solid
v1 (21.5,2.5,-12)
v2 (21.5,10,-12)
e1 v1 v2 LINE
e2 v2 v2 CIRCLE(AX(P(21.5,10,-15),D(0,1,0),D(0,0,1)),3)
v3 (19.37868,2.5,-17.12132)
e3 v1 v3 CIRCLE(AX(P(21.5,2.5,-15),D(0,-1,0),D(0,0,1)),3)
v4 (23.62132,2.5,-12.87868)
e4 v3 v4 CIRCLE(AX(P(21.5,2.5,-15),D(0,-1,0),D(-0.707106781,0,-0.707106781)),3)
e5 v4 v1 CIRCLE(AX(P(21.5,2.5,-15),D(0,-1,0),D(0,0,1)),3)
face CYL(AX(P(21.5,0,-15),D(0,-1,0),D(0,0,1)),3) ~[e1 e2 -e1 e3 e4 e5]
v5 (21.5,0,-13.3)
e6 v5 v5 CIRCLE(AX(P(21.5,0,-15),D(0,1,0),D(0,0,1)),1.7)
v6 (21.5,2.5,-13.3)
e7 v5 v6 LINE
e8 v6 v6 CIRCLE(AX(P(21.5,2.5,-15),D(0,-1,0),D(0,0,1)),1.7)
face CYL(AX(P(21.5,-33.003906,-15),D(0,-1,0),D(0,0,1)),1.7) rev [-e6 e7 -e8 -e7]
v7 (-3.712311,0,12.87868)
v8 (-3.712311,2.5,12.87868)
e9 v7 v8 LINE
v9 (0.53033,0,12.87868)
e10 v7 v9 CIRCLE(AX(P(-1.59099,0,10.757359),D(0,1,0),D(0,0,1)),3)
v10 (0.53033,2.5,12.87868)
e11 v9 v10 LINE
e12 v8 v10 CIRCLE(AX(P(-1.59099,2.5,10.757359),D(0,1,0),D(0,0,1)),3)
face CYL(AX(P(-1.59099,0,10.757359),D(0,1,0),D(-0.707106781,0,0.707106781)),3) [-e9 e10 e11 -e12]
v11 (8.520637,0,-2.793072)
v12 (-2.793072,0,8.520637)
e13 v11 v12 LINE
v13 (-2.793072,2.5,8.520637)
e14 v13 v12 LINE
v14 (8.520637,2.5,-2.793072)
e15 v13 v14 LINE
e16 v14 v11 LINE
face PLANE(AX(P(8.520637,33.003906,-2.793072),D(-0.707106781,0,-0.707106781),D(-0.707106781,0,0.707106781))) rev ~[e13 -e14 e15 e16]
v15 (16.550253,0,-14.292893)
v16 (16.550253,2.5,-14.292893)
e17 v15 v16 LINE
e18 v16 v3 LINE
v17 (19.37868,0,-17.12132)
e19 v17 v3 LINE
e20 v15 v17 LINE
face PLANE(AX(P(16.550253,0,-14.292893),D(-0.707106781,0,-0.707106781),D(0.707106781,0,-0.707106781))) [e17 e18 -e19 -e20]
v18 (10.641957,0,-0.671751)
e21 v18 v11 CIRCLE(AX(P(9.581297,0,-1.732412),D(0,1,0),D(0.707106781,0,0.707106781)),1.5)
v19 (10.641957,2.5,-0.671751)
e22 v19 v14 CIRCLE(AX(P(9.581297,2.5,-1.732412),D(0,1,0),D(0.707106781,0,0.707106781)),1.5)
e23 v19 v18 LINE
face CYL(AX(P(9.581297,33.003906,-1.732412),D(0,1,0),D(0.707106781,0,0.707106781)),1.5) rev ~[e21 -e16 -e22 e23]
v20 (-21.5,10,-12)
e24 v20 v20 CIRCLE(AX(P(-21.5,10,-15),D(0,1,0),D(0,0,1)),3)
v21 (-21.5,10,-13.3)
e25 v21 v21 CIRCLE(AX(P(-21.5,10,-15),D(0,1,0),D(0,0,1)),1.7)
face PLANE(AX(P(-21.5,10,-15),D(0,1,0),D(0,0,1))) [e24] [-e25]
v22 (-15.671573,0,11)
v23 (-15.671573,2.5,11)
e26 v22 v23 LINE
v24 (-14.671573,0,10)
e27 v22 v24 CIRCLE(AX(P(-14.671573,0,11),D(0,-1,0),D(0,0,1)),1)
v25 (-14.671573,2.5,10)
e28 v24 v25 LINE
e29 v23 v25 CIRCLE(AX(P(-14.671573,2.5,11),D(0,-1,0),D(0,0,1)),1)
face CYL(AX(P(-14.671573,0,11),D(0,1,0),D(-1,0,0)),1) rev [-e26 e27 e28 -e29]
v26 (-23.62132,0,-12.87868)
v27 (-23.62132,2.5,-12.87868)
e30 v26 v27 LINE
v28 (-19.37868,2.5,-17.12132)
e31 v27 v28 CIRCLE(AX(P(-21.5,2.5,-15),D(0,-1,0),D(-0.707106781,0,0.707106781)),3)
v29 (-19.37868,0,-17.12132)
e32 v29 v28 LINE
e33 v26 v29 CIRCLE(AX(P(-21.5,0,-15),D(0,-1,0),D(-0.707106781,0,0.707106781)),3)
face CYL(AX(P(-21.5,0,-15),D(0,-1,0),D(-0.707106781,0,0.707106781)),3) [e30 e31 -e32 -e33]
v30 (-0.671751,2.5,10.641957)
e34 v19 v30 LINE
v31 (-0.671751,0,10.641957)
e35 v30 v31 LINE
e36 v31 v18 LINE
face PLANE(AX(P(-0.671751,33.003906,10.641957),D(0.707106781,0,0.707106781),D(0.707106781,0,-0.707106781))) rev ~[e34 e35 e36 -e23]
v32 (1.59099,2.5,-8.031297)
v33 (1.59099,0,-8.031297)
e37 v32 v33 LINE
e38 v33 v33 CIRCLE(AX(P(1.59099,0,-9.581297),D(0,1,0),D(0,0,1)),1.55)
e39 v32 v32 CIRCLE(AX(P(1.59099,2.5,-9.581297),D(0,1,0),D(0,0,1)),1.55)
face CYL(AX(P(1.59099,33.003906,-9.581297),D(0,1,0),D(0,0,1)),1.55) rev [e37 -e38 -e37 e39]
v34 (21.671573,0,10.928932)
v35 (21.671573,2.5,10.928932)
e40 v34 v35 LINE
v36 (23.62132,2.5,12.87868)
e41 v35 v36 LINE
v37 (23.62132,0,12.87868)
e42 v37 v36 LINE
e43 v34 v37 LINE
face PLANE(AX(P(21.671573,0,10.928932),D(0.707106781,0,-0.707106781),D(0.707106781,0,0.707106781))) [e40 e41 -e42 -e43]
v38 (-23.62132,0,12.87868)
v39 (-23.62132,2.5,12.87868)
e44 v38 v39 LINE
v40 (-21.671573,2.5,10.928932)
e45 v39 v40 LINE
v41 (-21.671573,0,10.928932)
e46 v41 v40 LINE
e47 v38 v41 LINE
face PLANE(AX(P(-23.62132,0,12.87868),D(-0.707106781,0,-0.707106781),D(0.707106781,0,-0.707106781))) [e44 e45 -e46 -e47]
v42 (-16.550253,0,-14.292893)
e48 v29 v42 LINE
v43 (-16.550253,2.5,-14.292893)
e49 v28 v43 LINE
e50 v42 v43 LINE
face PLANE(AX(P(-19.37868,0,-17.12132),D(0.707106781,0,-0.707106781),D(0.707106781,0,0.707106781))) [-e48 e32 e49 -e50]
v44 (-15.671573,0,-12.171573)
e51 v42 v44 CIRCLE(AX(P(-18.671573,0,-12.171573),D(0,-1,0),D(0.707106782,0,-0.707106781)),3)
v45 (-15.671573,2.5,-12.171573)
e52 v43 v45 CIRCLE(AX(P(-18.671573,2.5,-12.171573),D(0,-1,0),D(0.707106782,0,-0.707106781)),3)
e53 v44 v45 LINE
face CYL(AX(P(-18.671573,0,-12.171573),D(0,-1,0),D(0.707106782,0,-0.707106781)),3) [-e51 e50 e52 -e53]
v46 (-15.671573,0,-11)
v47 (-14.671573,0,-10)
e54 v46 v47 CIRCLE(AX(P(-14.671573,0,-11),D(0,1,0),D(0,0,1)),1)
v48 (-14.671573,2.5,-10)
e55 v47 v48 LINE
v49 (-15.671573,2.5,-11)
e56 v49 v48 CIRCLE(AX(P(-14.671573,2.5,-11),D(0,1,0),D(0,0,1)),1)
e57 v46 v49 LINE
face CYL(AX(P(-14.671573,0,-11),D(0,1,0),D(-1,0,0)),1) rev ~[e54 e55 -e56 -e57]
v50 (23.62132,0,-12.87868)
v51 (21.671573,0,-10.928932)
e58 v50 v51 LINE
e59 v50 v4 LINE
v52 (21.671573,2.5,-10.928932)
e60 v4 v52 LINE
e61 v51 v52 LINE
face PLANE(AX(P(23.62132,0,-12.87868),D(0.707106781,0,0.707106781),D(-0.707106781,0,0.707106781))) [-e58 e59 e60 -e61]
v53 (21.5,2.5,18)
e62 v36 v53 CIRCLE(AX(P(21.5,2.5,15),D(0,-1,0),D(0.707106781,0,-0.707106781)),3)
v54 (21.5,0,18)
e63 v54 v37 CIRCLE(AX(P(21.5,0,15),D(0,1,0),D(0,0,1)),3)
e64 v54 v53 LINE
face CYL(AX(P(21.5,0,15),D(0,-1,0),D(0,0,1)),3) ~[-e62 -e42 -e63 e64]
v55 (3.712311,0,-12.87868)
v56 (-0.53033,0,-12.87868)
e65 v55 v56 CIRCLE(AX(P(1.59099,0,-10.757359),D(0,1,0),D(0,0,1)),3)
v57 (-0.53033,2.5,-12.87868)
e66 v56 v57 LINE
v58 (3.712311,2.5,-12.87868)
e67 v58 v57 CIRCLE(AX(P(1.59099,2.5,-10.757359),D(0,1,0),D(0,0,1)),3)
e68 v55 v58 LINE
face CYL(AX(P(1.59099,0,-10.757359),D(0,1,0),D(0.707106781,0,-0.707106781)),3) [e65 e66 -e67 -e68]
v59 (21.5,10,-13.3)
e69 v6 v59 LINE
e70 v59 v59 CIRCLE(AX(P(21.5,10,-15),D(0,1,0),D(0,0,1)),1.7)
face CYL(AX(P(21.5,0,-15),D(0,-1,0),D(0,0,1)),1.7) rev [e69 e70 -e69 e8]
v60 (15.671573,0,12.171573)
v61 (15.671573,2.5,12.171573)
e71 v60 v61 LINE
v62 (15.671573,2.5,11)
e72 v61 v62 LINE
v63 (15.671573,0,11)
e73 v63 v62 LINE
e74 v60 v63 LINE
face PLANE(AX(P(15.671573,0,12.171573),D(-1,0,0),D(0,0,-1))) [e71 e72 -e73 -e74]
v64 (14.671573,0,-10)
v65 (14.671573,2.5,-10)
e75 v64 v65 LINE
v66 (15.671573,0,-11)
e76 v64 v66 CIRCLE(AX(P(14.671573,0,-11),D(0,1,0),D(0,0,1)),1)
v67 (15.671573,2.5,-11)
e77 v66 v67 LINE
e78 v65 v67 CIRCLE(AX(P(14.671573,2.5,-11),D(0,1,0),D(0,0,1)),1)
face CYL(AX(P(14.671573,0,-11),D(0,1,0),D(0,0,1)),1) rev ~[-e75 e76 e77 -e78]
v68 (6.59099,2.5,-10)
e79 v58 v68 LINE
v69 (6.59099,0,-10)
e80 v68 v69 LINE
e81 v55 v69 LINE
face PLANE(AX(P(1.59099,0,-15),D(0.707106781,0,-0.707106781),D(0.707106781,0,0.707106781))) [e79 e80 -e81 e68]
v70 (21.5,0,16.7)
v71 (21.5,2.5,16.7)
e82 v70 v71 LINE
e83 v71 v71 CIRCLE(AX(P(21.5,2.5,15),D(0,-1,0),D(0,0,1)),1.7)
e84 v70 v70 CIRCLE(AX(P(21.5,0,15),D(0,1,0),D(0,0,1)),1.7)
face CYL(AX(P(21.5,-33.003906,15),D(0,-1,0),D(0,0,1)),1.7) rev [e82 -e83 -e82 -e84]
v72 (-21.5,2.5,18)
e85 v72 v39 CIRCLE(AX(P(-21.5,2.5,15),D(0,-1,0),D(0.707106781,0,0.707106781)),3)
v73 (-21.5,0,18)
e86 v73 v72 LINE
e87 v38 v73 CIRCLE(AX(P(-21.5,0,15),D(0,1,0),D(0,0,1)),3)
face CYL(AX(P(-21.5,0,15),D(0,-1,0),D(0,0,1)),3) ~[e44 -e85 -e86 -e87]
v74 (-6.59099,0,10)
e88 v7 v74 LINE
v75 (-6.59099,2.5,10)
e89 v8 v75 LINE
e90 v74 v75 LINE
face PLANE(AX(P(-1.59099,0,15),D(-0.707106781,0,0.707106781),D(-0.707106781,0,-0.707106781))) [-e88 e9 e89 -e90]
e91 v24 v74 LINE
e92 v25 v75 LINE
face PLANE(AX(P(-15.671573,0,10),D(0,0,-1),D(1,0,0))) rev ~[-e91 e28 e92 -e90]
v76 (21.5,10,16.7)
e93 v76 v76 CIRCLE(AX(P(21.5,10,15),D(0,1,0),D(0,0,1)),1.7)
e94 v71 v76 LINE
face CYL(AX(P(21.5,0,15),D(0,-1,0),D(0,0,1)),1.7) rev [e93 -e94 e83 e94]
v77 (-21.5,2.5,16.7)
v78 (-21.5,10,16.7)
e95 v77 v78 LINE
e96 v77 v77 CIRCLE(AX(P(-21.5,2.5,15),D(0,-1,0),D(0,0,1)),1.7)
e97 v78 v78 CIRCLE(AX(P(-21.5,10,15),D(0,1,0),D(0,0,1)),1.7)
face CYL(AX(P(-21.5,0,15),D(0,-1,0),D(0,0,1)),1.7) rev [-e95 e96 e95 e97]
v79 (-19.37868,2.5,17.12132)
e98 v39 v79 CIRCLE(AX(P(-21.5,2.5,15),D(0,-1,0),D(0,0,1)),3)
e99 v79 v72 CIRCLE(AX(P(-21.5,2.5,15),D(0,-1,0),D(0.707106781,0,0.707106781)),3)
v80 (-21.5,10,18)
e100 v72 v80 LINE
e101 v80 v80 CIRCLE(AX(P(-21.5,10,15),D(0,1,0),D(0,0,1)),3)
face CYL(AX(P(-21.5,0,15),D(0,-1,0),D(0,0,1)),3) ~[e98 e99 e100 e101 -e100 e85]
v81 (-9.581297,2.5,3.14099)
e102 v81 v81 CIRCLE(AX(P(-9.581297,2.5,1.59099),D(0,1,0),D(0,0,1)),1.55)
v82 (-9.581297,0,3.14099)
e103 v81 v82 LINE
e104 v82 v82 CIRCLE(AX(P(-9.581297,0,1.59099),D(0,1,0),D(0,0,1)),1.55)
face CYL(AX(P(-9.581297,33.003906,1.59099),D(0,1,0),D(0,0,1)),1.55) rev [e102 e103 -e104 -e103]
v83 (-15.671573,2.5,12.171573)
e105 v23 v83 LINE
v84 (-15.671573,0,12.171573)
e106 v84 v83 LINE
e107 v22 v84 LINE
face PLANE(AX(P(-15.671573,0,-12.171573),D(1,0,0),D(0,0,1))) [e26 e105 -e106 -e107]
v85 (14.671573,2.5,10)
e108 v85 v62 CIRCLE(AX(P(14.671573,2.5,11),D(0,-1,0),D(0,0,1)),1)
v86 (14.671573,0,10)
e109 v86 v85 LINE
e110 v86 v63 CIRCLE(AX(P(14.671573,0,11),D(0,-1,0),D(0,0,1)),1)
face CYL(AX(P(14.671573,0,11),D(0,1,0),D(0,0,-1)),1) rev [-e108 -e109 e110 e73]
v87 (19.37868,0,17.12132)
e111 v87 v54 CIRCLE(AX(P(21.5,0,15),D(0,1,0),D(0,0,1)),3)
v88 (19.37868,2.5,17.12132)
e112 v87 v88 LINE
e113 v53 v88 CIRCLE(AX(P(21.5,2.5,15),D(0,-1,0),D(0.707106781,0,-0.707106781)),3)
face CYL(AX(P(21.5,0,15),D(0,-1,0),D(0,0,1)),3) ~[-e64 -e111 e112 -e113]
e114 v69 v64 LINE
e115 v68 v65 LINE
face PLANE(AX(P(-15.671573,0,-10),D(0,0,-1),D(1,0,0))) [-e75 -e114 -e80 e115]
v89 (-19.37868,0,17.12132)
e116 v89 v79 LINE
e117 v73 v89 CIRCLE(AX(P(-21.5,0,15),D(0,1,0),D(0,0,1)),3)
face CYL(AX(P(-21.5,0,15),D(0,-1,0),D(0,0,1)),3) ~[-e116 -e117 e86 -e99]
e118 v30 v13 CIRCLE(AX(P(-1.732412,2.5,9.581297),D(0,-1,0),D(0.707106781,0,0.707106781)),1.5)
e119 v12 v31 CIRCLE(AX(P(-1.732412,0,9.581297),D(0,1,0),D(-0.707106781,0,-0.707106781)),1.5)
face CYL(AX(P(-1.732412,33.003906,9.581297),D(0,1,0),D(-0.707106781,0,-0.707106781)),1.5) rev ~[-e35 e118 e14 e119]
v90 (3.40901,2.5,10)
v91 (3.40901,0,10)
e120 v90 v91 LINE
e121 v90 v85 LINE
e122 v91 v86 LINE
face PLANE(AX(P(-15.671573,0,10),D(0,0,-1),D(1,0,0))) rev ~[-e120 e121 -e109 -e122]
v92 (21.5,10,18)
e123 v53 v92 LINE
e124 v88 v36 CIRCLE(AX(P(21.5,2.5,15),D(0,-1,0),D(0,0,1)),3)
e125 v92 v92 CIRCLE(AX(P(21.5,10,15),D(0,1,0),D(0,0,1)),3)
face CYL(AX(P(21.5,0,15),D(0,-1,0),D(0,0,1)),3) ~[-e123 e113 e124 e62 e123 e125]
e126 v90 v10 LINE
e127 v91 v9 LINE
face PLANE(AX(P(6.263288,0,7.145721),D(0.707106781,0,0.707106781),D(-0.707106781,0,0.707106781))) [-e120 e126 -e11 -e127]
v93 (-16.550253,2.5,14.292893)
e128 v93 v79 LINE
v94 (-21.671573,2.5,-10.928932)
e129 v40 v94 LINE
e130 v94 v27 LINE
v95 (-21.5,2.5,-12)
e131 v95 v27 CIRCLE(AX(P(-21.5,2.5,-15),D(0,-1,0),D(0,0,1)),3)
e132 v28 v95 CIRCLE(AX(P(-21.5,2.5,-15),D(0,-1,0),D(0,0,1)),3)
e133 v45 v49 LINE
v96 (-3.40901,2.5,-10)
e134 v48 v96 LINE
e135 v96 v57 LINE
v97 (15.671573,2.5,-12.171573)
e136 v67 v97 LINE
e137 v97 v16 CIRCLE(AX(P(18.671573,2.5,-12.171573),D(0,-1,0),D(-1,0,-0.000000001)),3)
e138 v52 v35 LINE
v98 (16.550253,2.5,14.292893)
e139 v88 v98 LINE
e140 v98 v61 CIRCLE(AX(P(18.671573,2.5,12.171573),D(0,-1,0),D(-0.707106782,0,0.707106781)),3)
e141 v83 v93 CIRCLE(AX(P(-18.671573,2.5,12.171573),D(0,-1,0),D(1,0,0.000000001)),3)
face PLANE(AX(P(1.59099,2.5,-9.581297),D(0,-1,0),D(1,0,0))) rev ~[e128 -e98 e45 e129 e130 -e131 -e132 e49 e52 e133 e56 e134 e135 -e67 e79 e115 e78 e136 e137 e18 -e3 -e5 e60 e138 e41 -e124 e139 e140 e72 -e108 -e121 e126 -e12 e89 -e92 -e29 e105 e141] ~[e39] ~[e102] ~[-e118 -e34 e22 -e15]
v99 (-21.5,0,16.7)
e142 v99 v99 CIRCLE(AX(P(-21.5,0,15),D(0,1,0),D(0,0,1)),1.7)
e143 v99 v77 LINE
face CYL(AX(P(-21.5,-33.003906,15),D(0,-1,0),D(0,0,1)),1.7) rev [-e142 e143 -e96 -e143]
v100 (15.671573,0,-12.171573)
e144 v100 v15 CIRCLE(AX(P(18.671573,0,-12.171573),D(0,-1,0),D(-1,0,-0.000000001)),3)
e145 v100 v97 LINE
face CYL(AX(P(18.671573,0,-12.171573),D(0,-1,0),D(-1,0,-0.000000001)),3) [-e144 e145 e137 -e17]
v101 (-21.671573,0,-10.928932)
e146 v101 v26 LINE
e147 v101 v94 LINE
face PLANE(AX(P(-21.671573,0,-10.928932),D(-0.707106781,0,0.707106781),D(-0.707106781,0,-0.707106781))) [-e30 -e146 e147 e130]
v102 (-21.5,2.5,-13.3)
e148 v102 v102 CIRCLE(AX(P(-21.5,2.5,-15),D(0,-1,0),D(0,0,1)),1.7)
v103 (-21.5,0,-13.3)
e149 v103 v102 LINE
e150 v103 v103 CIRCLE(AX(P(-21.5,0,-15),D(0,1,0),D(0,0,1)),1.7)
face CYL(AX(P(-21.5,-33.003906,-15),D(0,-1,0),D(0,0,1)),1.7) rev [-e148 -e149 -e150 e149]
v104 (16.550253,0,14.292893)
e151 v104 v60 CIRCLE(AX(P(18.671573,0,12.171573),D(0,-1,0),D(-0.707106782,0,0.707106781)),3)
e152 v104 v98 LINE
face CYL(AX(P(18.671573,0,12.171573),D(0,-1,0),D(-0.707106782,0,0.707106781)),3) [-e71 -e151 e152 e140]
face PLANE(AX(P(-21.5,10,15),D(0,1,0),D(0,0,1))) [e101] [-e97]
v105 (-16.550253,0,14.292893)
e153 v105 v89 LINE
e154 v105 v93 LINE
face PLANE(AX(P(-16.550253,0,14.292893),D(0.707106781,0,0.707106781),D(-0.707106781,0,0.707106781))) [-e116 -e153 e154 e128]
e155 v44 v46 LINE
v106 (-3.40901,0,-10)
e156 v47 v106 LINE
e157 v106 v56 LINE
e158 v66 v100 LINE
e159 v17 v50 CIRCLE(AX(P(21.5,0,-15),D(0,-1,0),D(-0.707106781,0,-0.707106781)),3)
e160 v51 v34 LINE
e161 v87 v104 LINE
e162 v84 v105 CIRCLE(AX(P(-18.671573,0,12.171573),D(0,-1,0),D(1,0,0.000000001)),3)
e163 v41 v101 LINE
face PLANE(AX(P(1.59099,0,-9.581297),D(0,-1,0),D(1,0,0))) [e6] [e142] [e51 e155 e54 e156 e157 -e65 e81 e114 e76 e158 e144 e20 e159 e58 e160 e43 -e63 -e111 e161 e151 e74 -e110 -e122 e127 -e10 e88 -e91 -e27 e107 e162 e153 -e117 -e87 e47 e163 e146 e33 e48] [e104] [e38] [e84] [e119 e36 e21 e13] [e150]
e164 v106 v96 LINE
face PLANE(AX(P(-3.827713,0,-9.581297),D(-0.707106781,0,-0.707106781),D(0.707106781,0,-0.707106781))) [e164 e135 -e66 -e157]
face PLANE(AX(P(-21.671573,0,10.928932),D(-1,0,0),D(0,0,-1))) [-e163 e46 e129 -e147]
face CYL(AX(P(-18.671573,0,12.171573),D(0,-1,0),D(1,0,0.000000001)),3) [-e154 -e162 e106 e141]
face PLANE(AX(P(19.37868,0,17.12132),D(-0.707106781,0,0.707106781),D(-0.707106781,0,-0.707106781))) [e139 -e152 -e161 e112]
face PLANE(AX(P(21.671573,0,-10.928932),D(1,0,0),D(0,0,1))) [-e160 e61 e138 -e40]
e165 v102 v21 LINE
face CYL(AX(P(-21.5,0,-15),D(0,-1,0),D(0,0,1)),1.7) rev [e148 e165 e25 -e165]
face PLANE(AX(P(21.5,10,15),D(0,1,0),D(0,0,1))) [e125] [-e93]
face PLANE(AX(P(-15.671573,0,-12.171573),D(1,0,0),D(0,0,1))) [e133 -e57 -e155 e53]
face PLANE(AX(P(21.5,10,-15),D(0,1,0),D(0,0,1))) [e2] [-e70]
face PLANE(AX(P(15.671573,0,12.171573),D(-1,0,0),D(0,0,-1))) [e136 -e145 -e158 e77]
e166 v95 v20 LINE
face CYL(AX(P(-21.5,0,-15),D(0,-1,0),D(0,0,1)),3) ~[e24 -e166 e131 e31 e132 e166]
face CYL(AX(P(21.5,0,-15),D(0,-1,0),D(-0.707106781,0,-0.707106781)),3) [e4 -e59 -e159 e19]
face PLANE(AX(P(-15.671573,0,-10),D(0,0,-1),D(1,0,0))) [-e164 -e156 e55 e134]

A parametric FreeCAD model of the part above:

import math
import FreeCAD as App
import Part
import Sketcher
Q = App.Units.Quantity


def edges_at(feature, points):
    """Names of the edges that pass closest to the given points."""
    edges = feature.Shape.Edges
    near = lambda p: min(range(len(edges)), key=lambda i: edges[i].distToShape(Part.Vertex(*p))[0])
    return sorted({f"Edge{near(p) + 1}" for p in points})

doc = App.newDocument("Part")
params = doc.addObject("Spreadsheet::Sheet", "Params")
for row, (alias, value) in enumerate([
    ("sketch1_diameter", "6 mm"),
    ("sketch1_diameter2", "3.4 mm"),
    ("pad1_length", "10 mm"),
    ("sketch2_diameter", "6 mm"),
    ("sketch2_diameter2", "3.4 mm"),
    ("pad2_length", "10 mm"),
    ("sketch3_diameter", "6 mm"),
    ("sketch3_diameter2", "3.4 mm"),
    ("pad3_length", "10 mm"),
    ("sketch4_diameter", "6 mm"),
    ("sketch4_diameter2", "3.4 mm"),
    ("pad4_length", "10 mm"),
    ("sketch5_radius", "3 mm"),
    ("sketch5_length", "4 mm"),
    ("pad5_length", "2.5 mm"),
    ("sketch6_diameter", "3.4 mm"),
    ("sketch7_height", "20 mm"),
    ("pad6_length", "2.5 mm"),
    ("fillet_radius", "1 mm"),
    ("pad7_length", "2.5 mm"),
    ("sketch9_diameter", "3.1 mm"),
    ("sketch9_radius", "1.5 mm"),
    ("sketch9_length", "16 mm"),
    ("fillet2_radius", "3 mm"),
], start=1):
    params.set(f"A{row}", alias)
    params.set(f"B{row}", "=" + value)
    params.setAlias(f"B{row}", alias)

body = doc.addObject("PartDesign::Body", "Body")

sketch1 = body.newObject("Sketcher::SketchObject", "Sketch")
sketch1.AttachmentSupport = (doc.getObject("XZ_Plane"), [""])
sketch1.MapMode = "FlatFace"
sketch1.addGeometry(Part.Circle(App.Vector(-21.5, -15, 0), App.Vector(0, 0, 1), 3), False)
sketch1.addGeometry(Part.Circle(App.Vector(-21.5, -15, 0), App.Vector(0, 0, 1), 1.7), False)
sketch1.addConstraint(Sketcher.Constraint("Coincident", 1, 3, 0, 3))
sketch1.addConstraint(Sketcher.Constraint("Diameter", 0, Q("6 mm")))
sketch1.addConstraint(Sketcher.Constraint("Diameter", 1, Q("3.4 mm")))
sketch1.addConstraint(Sketcher.Constraint("DistanceY", 0, 3, -1, 1, Q("15 mm")))
sketch1.addConstraint(Sketcher.Constraint("DistanceX", 0, 3, -1, 1, Q("21.5 mm")))
sketch1.setExpression("Constraints[1]", "Params.sketch1_diameter")
sketch1.setExpression("Constraints[2]", "Params.sketch1_diameter2")
pad1 = body.newObject("PartDesign::Pad", "Pad")
pad1.Profile = sketch1
pad1.setExpression("Length", "Params.pad1_length")
pad1.Reversed = True
body2 = doc.addObject("PartDesign::Body", "Body001")

sketch2 = body2.newObject("Sketcher::SketchObject", "Sketch001")
sketch2.AttachmentSupport = (doc.getObject("XZ_Plane001"), [""])
sketch2.MapMode = "FlatFace"
sketch2.addGeometry(Part.Circle(App.Vector(-21.5, 15, 0), App.Vector(0, 0, 1), 3), False)
sketch2.addGeometry(Part.Circle(App.Vector(-21.5, 15, 0), App.Vector(0, 0, 1), 1.7), False)
sketch2.addConstraint(Sketcher.Constraint("Coincident", 1, 3, 0, 3))
sketch2.addConstraint(Sketcher.Constraint("Diameter", 0, Q("6 mm")))
sketch2.addConstraint(Sketcher.Constraint("Diameter", 1, Q("3.4 mm")))
sketch2.addConstraint(Sketcher.Constraint("DistanceY", -1, 1, 0, 3, Q("15 mm")))
sketch2.addConstraint(Sketcher.Constraint("DistanceX", 0, 3, -1, 1, Q("21.5 mm")))
sketch2.setExpression("Constraints[1]", "Params.sketch2_diameter")
sketch2.setExpression("Constraints[2]", "Params.sketch2_diameter2")
pad2 = body2.newObject("PartDesign::Pad", "Pad001")
pad2.Profile = sketch2
pad2.setExpression("Length", "Params.pad2_length")
pad2.Reversed = True
body3 = doc.addObject("PartDesign::Body", "Body002")

sketch3 = body3.newObject("Sketcher::SketchObject", "Sketch002")
sketch3.AttachmentSupport = (doc.getObject("XZ_Plane002"), [""])
sketch3.MapMode = "FlatFace"
sketch3.addGeometry(Part.Circle(App.Vector(21.5, 15, 0), App.Vector(0, 0, 1), 3), False)
sketch3.addGeometry(Part.Circle(App.Vector(21.5, 15, 0), App.Vector(0, 0, 1), 1.7), False)
sketch3.addConstraint(Sketcher.Constraint("Coincident", 1, 3, 0, 3))
sketch3.addConstraint(Sketcher.Constraint("Diameter", 0, Q("6 mm")))
sketch3.addConstraint(Sketcher.Constraint("Diameter", 1, Q("3.4 mm")))
sketch3.addConstraint(Sketcher.Constraint("DistanceY", -1, 1, 0, 3, Q("15 mm")))
sketch3.addConstraint(Sketcher.Constraint("DistanceX", -1, 1, 0, 3, Q("21.5 mm")))
sketch3.setExpression("Constraints[1]", "Params.sketch3_diameter")
sketch3.setExpression("Constraints[2]", "Params.sketch3_diameter2")
pad3 = body3.newObject("PartDesign::Pad", "Pad002")
pad3.Profile = sketch3
pad3.setExpression("Length", "Params.pad3_length")
pad3.Reversed = True
body4 = doc.addObject("PartDesign::Body", "Body003")

sketch4 = body4.newObject("Sketcher::SketchObject", "Sketch003")
sketch4.AttachmentSupport = (doc.getObject("XZ_Plane003"), [""])
sketch4.MapMode = "FlatFace"
sketch4.addGeometry(Part.Circle(App.Vector(21.5, -15, 0), App.Vector(0, 0, 1), 3), False)
sketch4.addGeometry(Part.Circle(App.Vector(21.5, -15, 0), App.Vector(0, 0, 1), 1.7), False)
sketch4.addConstraint(Sketcher.Constraint("Coincident", 1, 3, 0, 3))
sketch4.addConstraint(Sketcher.Constraint("Diameter", 0, Q("6 mm")))
sketch4.addConstraint(Sketcher.Constraint("Diameter", 1, Q("3.4 mm")))
sketch4.addConstraint(Sketcher.Constraint("DistanceY", 0, 3, -1, 1, Q("15 mm")))
sketch4.addConstraint(Sketcher.Constraint("DistanceX", -1, 1, 0, 3, Q("21.5 mm")))
sketch4.setExpression("Constraints[1]", "Params.sketch4_diameter")
sketch4.setExpression("Constraints[2]", "Params.sketch4_diameter2")
pad4 = body4.newObject("PartDesign::Pad", "Pad003")
pad4.Profile = sketch4
pad4.setExpression("Length", "Params.pad4_length")
pad4.Reversed = True
body.AllowCompound = True
doc.recompute()

boolean = body.newObject("PartDesign::Boolean", "Boolean")
boolean.Type = "Fuse"
boolean.addObjects([body2])
doc.recompute()

boolean2 = body.newObject("PartDesign::Boolean", "Boolean001")
boolean2.Type = "Fuse"
boolean2.addObjects([body3])
doc.recompute()

boolean3 = body.newObject("PartDesign::Boolean", "Boolean002")
boolean3.Type = "Fuse"
boolean3.addObjects([body4])

sketch5 = body.newObject("Sketcher::SketchObject", "Sketch004")
sketch5.AttachmentSupport = (doc.getObject("XZ_Plane"), [""])
sketch5.MapMode = "FlatFace"
sketch5.addGeometry(Part.LineSegment(App.Vector(-15.7, 12.2, 0), App.Vector(-15.7, -12.2, 0)), False)
sketch5.addGeometry(Part.ArcOfCircle(Part.Circle(App.Vector(-18.7, -12.2, 0), App.Vector(0, 0, 1), 3), math.radians(-45), math.radians(0)), False)
sketch5.addGeometry(Part.LineSegment(App.Vector(-16.6, -14.3, 0), App.Vector(-19.4, -17.1, 0)), False)
sketch5.addGeometry(Part.ArcOfCircle(Part.Circle(App.Vector(-21.5, -15, 0), App.Vector(0, 0, 1), 3), math.radians(135), math.radians(315)), False)
sketch5.addGeometry(Part.LineSegment(App.Vector(-23.6, -12.9, 0), App.Vector(-21.7, -10.9, 0)), False)
sketch5.addGeometry(Part.LineSegment(App.Vector(-21.7, -10.9, 0), App.Vector(-21.7, 10.9, 0)), False)
sketch5.addGeometry(Part.LineSegment(App.Vector(-21.7, 10.9, 0), App.Vector(-23.6, 12.9, 0)), False)
sketch5.addGeometry(Part.ArcOfCircle(Part.Circle(App.Vector(-21.5, 15, 0), App.Vector(0, 0, 1), 3), math.radians(45), math.radians(225)), False)
sketch5.addGeometry(Part.LineSegment(App.Vector(-19.4, 17.1, 0), App.Vector(-16.6, 14.3, 0)), False)
sketch5.addGeometry(Part.ArcOfCircle(Part.Circle(App.Vector(-18.7, 12.2, 0), App.Vector(0, 0, 1), 3), math.radians(0), math.radians(45)), False)
sketch5.addGeometry(Part.ArcOfCircle(Part.Circle(App.Vector(21.5, -15, 0), App.Vector(0, 0, 1), 3), math.radians(-135), math.radians(45)), False)
sketch5.addGeometry(Part.LineSegment(App.Vector(19.4, -17.1, 0), App.Vector(16.6, -14.3, 0)), False)
sketch5.addGeometry(Part.ArcOfCircle(Part.Circle(App.Vector(18.7, -12.2, 0), App.Vector(0, 0, 1), 3), math.radians(-180), math.radians(-135)), False)
sketch5.addGeometry(Part.LineSegment(App.Vector(15.7, -12.2, 0), App.Vector(15.7, 12.2, 0)), False)
sketch5.addGeometry(Part.ArcOfCircle(Part.Circle(App.Vector(18.7, 12.2, 0), App.Vector(0, 0, 1), 3), math.radians(135), math.radians(180)), False)
sketch5.addGeometry(Part.LineSegment(App.Vector(16.6, 14.3, 0), App.Vector(19.4, 17.1, 0)), False)
sketch5.addGeometry(Part.ArcOfCircle(Part.Circle(App.Vector(21.5, 15, 0), App.Vector(0, 0, 1), 3), math.radians(-45), math.radians(135)), False)
sketch5.addGeometry(Part.LineSegment(App.Vector(23.6, 12.9, 0), App.Vector(21.7, 10.9, 0)), False)
sketch5.addGeometry(Part.LineSegment(App.Vector(21.7, 10.9, 0), App.Vector(21.7, -10.9, 0)), False)
sketch5.addGeometry(Part.LineSegment(App.Vector(21.7, -10.9, 0), App.Vector(23.6, -12.9, 0)), False)
sketch5.addConstraint(Sketcher.Constraint("Tangent", 0, 2, 1, 2))
sketch5.addConstraint(Sketcher.Constraint("Tangent", 1, 1, 2, 1))
sketch5.addConstraint(Sketcher.Constraint("Tangent", 2, 2, 3, 2))
sketch5.addConstraint(Sketcher.Constraint("Tangent", 3, 1, 4, 1))
sketch5.addConstraint(Sketcher.Constraint("Coincident", 4, 2, 5, 1))
sketch5.addConstraint(Sketcher.Constraint("Coincident", 5, 2, 6, 1))
sketch5.addConstraint(Sketcher.Constraint("Tangent", 6, 2, 7, 2))
sketch5.addConstraint(Sketcher.Constraint("Tangent", 7, 1, 8, 1))
sketch5.addConstraint(Sketcher.Constraint("Tangent", 8, 2, 9, 2))
sketch5.addConstraint(Sketcher.Constraint("Tangent", 9, 1, 0, 1))
sketch5.addConstraint(Sketcher.Constraint("Tangent", 10, 1, 11, 1))
sketch5.addConstraint(Sketcher.Constraint("Tangent", 11, 2, 12, 2))
sketch5.addConstraint(Sketcher.Constraint("Tangent", 12, 1, 13, 1))
sketch5.addConstraint(Sketcher.Constraint("Tangent", 13, 2, 14, 2))
sketch5.addConstraint(Sketcher.Constraint("Tangent", 14, 1, 15, 1))
sketch5.addConstraint(Sketcher.Constraint("Tangent", 15, 2, 16, 2))
sketch5.addConstraint(Sketcher.Constraint("Tangent", 16, 1, 17, 1))
sketch5.addConstraint(Sketcher.Constraint("Coincident", 17, 2, 18, 1))
sketch5.addConstraint(Sketcher.Constraint("Coincident", 18, 2, 19, 1))
sketch5.addConstraint(Sketcher.Constraint("Tangent", 19, 2, 10, 2))
sketch5.addConstraint(Sketcher.Constraint("Vertical", 0))
sketch5.addConstraint(Sketcher.Constraint("Vertical", 5))
sketch5.addConstraint(Sketcher.Constraint("Vertical", 13))
sketch5.addConstraint(Sketcher.Constraint("Vertical", 18))
sketch5.addConstraint(Sketcher.Constraint("Equal", 1, 3))
sketch5.addConstraint(Sketcher.Constraint("Equal", 3, 7))
sketch5.addConstraint(Sketcher.Constraint("Equal", 7, 9))
sketch5.addConstraint(Sketcher.Constraint("Equal", 9, 10))
sketch5.addConstraint(Sketcher.Constraint("Equal", 10, 12))
sketch5.addConstraint(Sketcher.Constraint("Equal", 12, 14))
sketch5.addConstraint(Sketcher.Constraint("Equal", 14, 16))
sketch5.addConstraint(Sketcher.Constraint("Symmetric", 7, 3, 10, 3, -1, 1))
sketch5.addConstraint(Sketcher.Constraint("Symmetric", 9, 3, 12, 3, -1, 1))
sketch5.addConstraint(Sketcher.Constraint("Symmetric", 3, 3, 16, 3, -1, 1))
sketch5.addConstraint(Sketcher.Constraint("Symmetric", 4, 2, 17, 2, -1, 1))
sketch5.addConstraint(Sketcher.Constraint("Symmetric", 3, 3, 10, 3, -2))
sketch5.addConstraint(Sketcher.Constraint("Parallel", 2, 4))
sketch5.addConstraint(Sketcher.Constraint("Perpendicular", 4, 6))
sketch5.addConstraint(Sketcher.Constraint("Parallel", 6, 8))
sketch5.addConstraint(Sketcher.Constraint("Perpendicular", 11, 15))
sketch5.addConstraint(Sketcher.Constraint("Perpendicular", 17, 19))
sketch5.addConstraint(Sketcher.Constraint("Horizontal", 1, 3, 12, 3))
sketch5.addConstraint(Sketcher.Constraint("Radius", 1, Q("3 mm")))
sketch5.addConstraint(Sketcher.Constraint("Distance", 2, Q("4 mm")))
sketch5.addConstraint(Sketcher.Constraint("DistanceY", 3, 3, -1, 1, Q("15 mm")))
sketch5.addConstraint(Sketcher.Constraint("DistanceX", 3, 3, 10, 3, Q("43 mm")))
sketch5.addConstraint(Sketcher.Constraint("DistanceX", 4, 2, 1, 3, Q("3 mm")))
sketch5.setExpression("Constraints[42]", "Params.sketch5_radius")
sketch5.setExpression("Constraints[43]", "Params.sketch5_length")
pad5 = body.newObject("PartDesign::Pad", "Pad004")
pad5.Profile = sketch5
pad5.setExpression("Length", "Params.pad5_length")
pad5.Reversed = True

sketch6 = body.newObject("Sketcher::SketchObject", "Sketch005")
sketch6.AttachmentSupport = (doc.getObject("XZ_Plane"), [""])
sketch6.MapMode = "FlatFace"
sketch6.addGeometry(Part.Circle(App.Vector(-21.5, 15, 0), App.Vector(0, 0, 1), 1.7), False)
sketch6.addGeometry(Part.Circle(App.Vector(-21.5, -15, 0), App.Vector(0, 0, 1), 1.7), False)
sketch6.addGeometry(Part.Circle(App.Vector(21.5, -15, 0), App.Vector(0, 0, 1), 1.7), False)
sketch6.addGeometry(Part.Circle(App.Vector(21.5, 15, 0), App.Vector(0, 0, 1), 1.7), False)
sketch6.addConstraint(Sketcher.Constraint("Equal", 0, 1))
sketch6.addConstraint(Sketcher.Constraint("Equal", 1, 2))
sketch6.addConstraint(Sketcher.Constraint("Equal", 2, 3))
sketch6.addConstraint(Sketcher.Constraint("Symmetric", 0, 3, 2, 3, -1, 1))
sketch6.addConstraint(Sketcher.Constraint("Symmetric", 1, 3, 3, 3, -1, 1))
sketch6.addConstraint(Sketcher.Constraint("Symmetric", 1, 3, 2, 3, -2))
sketch6.addConstraint(Sketcher.Constraint("Diameter", 0, Q("3.4 mm")))
sketch6.addConstraint(Sketcher.Constraint("DistanceY", -1, 1, 0, 3, Q("15 mm")))
sketch6.addConstraint(Sketcher.Constraint("DistanceX", 1, 3, 2, 3, Q("43 mm")))
sketch6.setExpression("Constraints[6]", "Params.sketch6_diameter")
pocket1 = body.newObject("PartDesign::Pocket", "Pocket")
pocket1.Profile = sketch6
pocket1.Type = "ThroughAll"
pocket1.Midplane = True

sketch7 = body.newObject("Sketcher::SketchObject", "Sketch006")
sketch7.AttachmentSupport = (doc.getObject("XZ_Plane"), [""])
sketch7.MapMode = "FlatFace"
sketch7.addGeometry(Part.LineSegment(App.Vector(-16, -10, 0), App.Vector(-16, 10, 0)), False)
sketch7.addGeometry(Part.LineSegment(App.Vector(-16, 10, 0), App.Vector(16, 10, 0)), False)
sketch7.addGeometry(Part.LineSegment(App.Vector(16, 10, 0), App.Vector(16, -10, 0)), False)
sketch7.addGeometry(Part.LineSegment(App.Vector(16, -10, 0), App.Vector(-16, -10, 0)), False)
sketch7.addConstraint(Sketcher.Constraint("Coincident", 0, 2, 1, 1))
sketch7.addConstraint(Sketcher.Constraint("Coincident", 1, 2, 2, 1))
sketch7.addConstraint(Sketcher.Constraint("Coincident", 2, 2, 3, 1))
sketch7.addConstraint(Sketcher.Constraint("Coincident", 3, 2, 0, 1))
sketch7.addConstraint(Sketcher.Constraint("Vertical", 0))
sketch7.addConstraint(Sketcher.Constraint("Horizontal", 1))
sketch7.addConstraint(Sketcher.Constraint("Vertical", 2))
sketch7.addConstraint(Sketcher.Constraint("Horizontal", 3))
sketch7.addConstraint(Sketcher.Constraint("Symmetric", 0, 2, 2, 2, -1, 1))
sketch7.addConstraint(Sketcher.Constraint("DistanceY", 0, 1, 0, 2, Q("20 mm")))
sketch7.addConstraint(Sketcher.Constraint("DistanceX", 1, 1, 1, 2, Q("31.343146 mm")))
sketch7.setExpression("Constraints[9]", "Params.sketch7_height")
pad6 = body.newObject("PartDesign::Pad", "Pad005")
pad6.Profile = sketch7
pad6.setExpression("Length", "Params.pad6_length")
pad6.Reversed = True
doc.recompute()

fillet = body.newObject("PartDesign::Fillet", "Fillet")
fillet.Base = (pad6, edges_at(pad6, [
    (15.672, 1.25, 10),
    (15.672, 1.25, -10),
    (-15.672, 1.25, -10),
    (-15.672, 1.25, 10),
]))
fillet.setExpression("Radius", "Params.fillet_radius")

sketch8 = body.newObject("Sketcher::SketchObject", "Sketch007")
sketch8.AttachmentSupport = (doc.getObject("XZ_Plane"), [""])
sketch8.MapMode = "FlatFace"
sketch8.addGeometry(Part.LineSegment(App.Vector(2, -4, 0), App.Vector(-4, -10, 0)), False)
sketch8.addGeometry(Part.LineSegment(App.Vector(-4, -10, 0), App.Vector(2, -15, 0)), False)
sketch8.addGeometry(Part.LineSegment(App.Vector(2, -15, 0), App.Vector(7, -10, 0)), False)
sketch8.addGeometry(Part.LineSegment(App.Vector(7, -10, 0), App.Vector(2, -4, 0)), False)
sketch8.addGeometry(Part.LineSegment(App.Vector(-2, 15, 0), App.Vector(-9, 7, 0)), False)
sketch8.addGeometry(Part.LineSegment(App.Vector(-9, 7, 0), App.Vector(-2, -1, 0)), False)
sketch8.addGeometry(Part.LineSegment(App.Vector(-2, -1, 0), App.Vector(6, 7, 0)), False)
sketch8.addGeometry(Part.LineSegment(App.Vector(6, 7, 0), App.Vector(-2, 15, 0)), False)
sketch8.addConstraint(Sketcher.Constraint("Coincident", 0, 2, 1, 1))
sketch8.addConstraint(Sketcher.Constraint("Coincident", 1, 2, 2, 1))
sketch8.addConstraint(Sketcher.Constraint("Coincident", 2, 2, 3, 1))
sketch8.addConstraint(Sketcher.Constraint("Coincident", 3, 2, 0, 1))
sketch8.addConstraint(Sketcher.Constraint("Coincident", 4, 2, 5, 1))
sketch8.addConstraint(Sketcher.Constraint("Coincident", 5, 2, 6, 1))
sketch8.addConstraint(Sketcher.Constraint("Coincident", 6, 2, 7, 1))
sketch8.addConstraint(Sketcher.Constraint("Coincident", 7, 2, 4, 1))
sketch8.addConstraint(Sketcher.Constraint("Symmetric", 1, 2, 7, 2, -1, 1))
sketch8.addConstraint(Sketcher.Constraint("Perpendicular", 0, 1))
sketch8.addConstraint(Sketcher.Constraint("Perpendicular", 1, 2))
sketch8.addConstraint(Sketcher.Constraint("Perpendicular", 2, 3))
sketch8.addConstraint(Sketcher.Constraint("Perpendicular", 3, 4))
sketch8.addConstraint(Sketcher.Constraint("Perpendicular", 4, 5))
sketch8.addConstraint(Sketcher.Constraint("Perpendicular", 5, 6))
sketch8.addConstraint(Sketcher.Constraint("Perpendicular", 6, 7))
sketch8.addConstraint(Sketcher.Constraint("Horizontal", 0, 2, 2, 2))
sketch8.addConstraint(Sketcher.Constraint("Horizontal", 4, 2, 6, 2))
sketch8.addConstraint(Sketcher.Constraint("Vertical", 1, 2, 3, 2))
sketch8.addConstraint(Sketcher.Constraint("DistanceY", 1, 2, -1, 1, Q("15 mm")))
sketch8.addConstraint(Sketcher.Constraint("DistanceX", 0, 2, 6, 2, Q("10.091001 mm")))
sketch8.addConstraint(Sketcher.Constraint("DistanceX", -1, 1, 1, 2, Q("1.59099 mm")))
sketch8.addConstraint(Sketcher.Constraint("DistanceX", 4, 2, -1, 1, Q("9.445269 mm")))
pad7 = body.newObject("PartDesign::Pad", "Pad006")
pad7.Profile = sketch8
pad7.setExpression("Length", "Params.pad7_length")
pad7.Reversed = True

sketch9 = body.newObject("Sketcher::SketchObject", "Sketch008")
sketch9.AttachmentSupport = (doc.getObject("XZ_Plane"), [""])
sketch9.MapMode = "FlatFace"
sketch9.addGeometry(Part.Circle(App.Vector(-9.6, 1.6, 0), App.Vector(0, 0, 1), 1.6), False)
sketch9.addGeometry(Part.Circle(App.Vector(1.6, -9.6, 0), App.Vector(0, 0, 1), 1.6), False)
sketch9.addGeometry(Part.LineSegment(App.Vector(10.6, -0.7, 0), App.Vector(-0.7, 10.6, 0)), False)
sketch9.addGeometry(Part.ArcOfCircle(Part.Circle(App.Vector(-1.7, 9.6, 0), App.Vector(0, 0, 1), 1.5), math.radians(45), math.radians(225)), False)
sketch9.addGeometry(Part.LineSegment(App.Vector(-2.8, 8.5, 0), App.Vector(8.5, -2.8, 0)), False)
sketch9.addGeometry(Part.ArcOfCircle(Part.Circle(App.Vector(9.6, -1.7, 0), App.Vector(0, 0, 1), 1.5), math.radians(-135), math.radians(45)), False)
sketch9.addConstraint(Sketcher.Constraint("Tangent", 2, 2, 3, 1))
sketch9.addConstraint(Sketcher.Constraint("Tangent", 3, 2, 4, 1))
sketch9.addConstraint(Sketcher.Constraint("Tangent", 4, 2, 5, 1))
sketch9.addConstraint(Sketcher.Constraint("Tangent", 5, 2, 2, 1))
sketch9.addConstraint(Sketcher.Constraint("Equal", 0, 1))
sketch9.addConstraint(Sketcher.Constraint("Equal", 3, 5))
sketch9.addConstraint(Sketcher.Constraint("Diameter", 0, Q("3.1 mm")))
sketch9.addConstraint(Sketcher.Constraint("Radius", 3, Q("1.5 mm")))
sketch9.addConstraint(Sketcher.Constraint("Angle", 2, Q("135 deg")))
sketch9.addConstraint(Sketcher.Constraint("Distance", 2, Q("16 mm")))
sketch9.addConstraint(Sketcher.Constraint("DistanceX", 3, 3, 1, 3, Q("3.323402 mm")))
sketch9.addConstraint(Sketcher.Constraint("DistanceY", 5, 3, 0, 3, Q("3.323402 mm")))
sketch9.addConstraint(Sketcher.Constraint("DistanceY", -1, 1, 0, 3, Q("1.59099 mm")))
sketch9.addConstraint(Sketcher.Constraint("DistanceX", -1, 1, 1, 3, Q("1.59099 mm")))
sketch9.addConstraint(Sketcher.Constraint("DistanceX", 0, 3, -1, 1, Q("9.581297 mm")))
sketch9.addConstraint(Sketcher.Constraint("DistanceY", 1, 3, -1, 1, Q("9.581297 mm")))
sketch9.setExpression("Constraints[6]", "Params.sketch9_diameter")
sketch9.setExpression("Constraints[7]", "Params.sketch9_radius")
sketch9.setExpression("Constraints[9]", "Params.sketch9_length")
pocket2 = body.newObject("PartDesign::Pocket", "Pocket001")
pocket2.Profile = sketch9
pocket2.Type = "ThroughAll"
pocket2.Midplane = True
doc.recompute()

fillet2 = body.newObject("PartDesign::Fillet", "Fillet001")
fillet2.Base = (pocket2, edges_at(pocket2, [(1.591, 1.25, -15), (-1.591, 1.25, 15)]))
fillet2.setExpression("Radius", "Params.fillet2_radius")

doc.recompute()
